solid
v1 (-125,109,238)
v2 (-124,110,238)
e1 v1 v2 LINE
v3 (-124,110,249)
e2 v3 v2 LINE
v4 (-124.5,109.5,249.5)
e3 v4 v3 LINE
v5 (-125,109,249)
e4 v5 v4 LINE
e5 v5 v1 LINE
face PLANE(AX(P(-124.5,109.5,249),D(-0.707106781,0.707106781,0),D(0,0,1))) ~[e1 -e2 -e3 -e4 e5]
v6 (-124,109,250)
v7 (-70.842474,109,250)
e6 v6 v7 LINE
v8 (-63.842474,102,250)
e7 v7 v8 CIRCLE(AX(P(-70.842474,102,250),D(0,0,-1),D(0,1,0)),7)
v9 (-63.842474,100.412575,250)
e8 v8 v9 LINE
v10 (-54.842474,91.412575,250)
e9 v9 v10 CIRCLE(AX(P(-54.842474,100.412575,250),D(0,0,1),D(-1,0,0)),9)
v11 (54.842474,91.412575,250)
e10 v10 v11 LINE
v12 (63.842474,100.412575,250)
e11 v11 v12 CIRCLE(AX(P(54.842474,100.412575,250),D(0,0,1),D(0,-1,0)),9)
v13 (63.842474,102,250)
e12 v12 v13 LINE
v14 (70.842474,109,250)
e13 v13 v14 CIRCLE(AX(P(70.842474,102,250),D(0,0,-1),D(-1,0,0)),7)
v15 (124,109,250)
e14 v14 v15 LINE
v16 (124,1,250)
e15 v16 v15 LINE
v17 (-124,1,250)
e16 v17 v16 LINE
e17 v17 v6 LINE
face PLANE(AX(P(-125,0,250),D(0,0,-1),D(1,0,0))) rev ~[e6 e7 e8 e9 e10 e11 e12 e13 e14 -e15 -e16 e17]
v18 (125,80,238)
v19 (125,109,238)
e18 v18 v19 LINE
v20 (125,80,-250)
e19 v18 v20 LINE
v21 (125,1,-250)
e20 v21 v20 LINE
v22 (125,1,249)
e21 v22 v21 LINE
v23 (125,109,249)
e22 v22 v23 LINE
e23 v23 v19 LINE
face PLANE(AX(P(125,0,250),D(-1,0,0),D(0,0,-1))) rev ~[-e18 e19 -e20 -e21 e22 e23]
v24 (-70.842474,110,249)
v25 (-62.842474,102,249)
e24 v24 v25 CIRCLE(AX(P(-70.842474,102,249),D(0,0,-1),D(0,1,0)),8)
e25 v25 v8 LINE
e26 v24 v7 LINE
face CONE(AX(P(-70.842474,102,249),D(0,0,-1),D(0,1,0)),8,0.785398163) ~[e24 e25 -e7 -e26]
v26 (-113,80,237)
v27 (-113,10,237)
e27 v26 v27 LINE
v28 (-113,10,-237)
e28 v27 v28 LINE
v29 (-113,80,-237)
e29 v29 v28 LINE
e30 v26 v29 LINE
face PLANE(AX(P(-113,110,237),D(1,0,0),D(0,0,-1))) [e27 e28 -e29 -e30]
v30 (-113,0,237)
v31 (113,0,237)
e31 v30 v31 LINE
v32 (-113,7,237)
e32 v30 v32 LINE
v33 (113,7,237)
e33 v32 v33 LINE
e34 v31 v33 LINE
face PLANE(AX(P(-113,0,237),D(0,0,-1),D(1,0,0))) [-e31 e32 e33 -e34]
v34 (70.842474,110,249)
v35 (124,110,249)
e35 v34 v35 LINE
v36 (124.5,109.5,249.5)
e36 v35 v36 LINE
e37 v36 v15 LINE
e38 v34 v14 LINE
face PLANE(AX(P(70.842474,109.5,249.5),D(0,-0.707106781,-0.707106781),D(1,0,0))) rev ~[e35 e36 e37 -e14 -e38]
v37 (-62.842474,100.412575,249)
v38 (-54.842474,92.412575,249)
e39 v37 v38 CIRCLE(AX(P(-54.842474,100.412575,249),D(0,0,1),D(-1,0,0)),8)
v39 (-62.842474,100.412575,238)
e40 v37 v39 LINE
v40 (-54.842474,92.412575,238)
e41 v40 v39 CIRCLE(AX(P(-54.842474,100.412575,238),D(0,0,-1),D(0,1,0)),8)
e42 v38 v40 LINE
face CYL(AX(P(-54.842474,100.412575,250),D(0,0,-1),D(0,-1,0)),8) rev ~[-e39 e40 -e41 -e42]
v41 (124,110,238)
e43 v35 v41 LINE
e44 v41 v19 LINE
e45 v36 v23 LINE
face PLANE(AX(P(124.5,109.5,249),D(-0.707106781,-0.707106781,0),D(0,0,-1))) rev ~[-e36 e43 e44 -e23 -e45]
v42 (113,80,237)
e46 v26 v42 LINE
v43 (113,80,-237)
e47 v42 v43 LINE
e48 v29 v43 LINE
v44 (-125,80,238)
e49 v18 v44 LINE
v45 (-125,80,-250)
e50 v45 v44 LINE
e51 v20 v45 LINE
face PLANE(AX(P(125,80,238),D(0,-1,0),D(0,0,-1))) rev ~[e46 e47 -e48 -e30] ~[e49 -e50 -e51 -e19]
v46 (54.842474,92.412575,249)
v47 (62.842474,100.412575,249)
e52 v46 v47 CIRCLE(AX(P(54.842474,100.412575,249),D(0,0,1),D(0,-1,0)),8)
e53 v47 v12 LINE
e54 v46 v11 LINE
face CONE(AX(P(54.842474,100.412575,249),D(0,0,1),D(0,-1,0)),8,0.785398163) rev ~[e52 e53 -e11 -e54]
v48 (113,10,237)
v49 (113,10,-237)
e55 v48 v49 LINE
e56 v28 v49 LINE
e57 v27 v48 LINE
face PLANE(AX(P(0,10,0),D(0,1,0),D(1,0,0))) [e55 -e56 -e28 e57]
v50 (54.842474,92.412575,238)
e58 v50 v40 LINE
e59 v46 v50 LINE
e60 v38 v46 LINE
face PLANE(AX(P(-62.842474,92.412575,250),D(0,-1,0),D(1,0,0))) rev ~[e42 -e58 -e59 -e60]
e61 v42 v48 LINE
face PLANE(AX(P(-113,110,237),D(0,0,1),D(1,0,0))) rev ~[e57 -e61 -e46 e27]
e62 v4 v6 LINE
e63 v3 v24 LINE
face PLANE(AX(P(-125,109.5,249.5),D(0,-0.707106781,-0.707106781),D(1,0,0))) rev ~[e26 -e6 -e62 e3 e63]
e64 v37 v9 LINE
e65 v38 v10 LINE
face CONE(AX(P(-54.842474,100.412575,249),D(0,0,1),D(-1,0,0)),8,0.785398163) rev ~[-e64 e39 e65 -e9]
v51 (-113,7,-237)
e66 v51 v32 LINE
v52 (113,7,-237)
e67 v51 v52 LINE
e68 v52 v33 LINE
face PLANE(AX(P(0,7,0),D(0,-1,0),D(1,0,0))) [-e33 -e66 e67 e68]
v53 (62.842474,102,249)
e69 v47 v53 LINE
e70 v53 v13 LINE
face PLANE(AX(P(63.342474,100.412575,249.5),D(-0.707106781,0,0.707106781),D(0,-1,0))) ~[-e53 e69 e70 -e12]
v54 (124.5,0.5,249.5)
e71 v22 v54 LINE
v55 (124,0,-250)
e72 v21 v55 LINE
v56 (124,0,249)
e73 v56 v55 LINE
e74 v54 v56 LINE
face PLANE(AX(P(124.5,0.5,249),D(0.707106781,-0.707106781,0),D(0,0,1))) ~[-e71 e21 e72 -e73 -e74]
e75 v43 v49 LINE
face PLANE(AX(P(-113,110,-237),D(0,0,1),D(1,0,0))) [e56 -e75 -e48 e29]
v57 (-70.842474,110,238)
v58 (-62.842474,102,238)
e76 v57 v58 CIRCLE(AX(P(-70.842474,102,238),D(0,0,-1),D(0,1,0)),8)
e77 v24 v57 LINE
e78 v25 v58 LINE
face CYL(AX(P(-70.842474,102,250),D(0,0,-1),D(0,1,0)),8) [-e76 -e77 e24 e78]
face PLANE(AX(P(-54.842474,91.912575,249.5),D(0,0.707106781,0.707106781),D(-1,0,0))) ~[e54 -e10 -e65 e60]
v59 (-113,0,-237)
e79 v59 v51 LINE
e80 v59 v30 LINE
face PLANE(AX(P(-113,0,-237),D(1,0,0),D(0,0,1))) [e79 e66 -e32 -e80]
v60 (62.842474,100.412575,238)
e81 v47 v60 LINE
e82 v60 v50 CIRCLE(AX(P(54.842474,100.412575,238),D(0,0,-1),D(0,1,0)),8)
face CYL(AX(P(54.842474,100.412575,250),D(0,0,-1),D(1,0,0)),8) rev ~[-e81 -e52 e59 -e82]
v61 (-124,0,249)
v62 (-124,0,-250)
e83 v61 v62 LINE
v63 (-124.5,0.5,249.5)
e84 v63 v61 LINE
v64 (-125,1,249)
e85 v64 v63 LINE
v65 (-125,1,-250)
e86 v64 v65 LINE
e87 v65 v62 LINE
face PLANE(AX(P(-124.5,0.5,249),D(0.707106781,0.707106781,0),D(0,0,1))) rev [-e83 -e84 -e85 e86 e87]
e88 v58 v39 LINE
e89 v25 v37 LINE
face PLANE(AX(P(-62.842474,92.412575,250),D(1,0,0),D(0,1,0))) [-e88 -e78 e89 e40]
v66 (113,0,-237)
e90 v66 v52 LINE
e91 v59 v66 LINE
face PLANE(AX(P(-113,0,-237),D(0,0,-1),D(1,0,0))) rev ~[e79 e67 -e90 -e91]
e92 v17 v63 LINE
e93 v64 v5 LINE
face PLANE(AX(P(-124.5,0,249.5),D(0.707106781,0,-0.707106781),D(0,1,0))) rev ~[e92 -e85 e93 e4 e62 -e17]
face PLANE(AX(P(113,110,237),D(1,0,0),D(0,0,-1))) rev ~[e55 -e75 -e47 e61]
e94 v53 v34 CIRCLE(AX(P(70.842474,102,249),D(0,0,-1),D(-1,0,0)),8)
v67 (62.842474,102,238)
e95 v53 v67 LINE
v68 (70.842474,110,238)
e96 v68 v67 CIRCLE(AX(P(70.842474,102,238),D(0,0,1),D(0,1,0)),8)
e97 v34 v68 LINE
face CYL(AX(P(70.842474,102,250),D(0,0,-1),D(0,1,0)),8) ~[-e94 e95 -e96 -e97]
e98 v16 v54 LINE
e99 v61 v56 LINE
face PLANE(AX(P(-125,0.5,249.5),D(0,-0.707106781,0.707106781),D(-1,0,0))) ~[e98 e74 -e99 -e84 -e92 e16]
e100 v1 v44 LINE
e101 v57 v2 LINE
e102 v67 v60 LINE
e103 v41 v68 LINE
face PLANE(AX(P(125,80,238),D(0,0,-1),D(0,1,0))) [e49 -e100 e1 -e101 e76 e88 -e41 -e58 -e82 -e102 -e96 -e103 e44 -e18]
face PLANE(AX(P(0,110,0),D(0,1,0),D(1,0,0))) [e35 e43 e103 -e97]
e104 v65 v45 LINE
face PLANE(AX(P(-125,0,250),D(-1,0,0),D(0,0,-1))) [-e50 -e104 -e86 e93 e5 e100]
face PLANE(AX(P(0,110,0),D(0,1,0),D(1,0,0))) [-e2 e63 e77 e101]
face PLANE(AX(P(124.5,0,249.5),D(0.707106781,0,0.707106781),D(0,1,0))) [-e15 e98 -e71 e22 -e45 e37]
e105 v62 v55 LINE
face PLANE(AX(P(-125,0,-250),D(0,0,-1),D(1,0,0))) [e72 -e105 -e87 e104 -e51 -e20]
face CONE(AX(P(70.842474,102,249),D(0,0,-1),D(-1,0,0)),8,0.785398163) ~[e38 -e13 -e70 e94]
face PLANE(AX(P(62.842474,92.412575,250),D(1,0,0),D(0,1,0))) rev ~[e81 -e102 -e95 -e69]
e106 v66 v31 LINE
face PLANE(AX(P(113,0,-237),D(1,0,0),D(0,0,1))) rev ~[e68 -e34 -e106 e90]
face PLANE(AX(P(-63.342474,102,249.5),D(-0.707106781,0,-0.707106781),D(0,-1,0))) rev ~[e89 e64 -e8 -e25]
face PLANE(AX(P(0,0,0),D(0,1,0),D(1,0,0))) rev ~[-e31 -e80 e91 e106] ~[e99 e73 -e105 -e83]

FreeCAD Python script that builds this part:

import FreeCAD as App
import Part
import Sketcher
from FreeCAD import Vector
Q = App.Units.Quantity


def edges_at(feature, points):
    """Names of the edges that pass closest to the given points."""
    edges = feature.Shape.Edges
    near = lambda p: min(range(len(edges)), key=lambda i: edges[i].distToShape(Part.Vertex(*p))[0])
    return sorted({f"Edge{near(p) + 1}" for p in points})

doc = App.newDocument("Part")
body = doc.addObject("PartDesign::Body", "Body")

sketch1 = body.newObject("Sketcher::SketchObject", "Sketch")
sketch1.AttachmentSupport = (doc.getObject("XZ_Plane"), [""])
sketch1.MapMode = "FlatFace"
sketch1.addGeometry(Part.LineSegment(Vector(-125, -250, 0), Vector(-125, 250, 0)), False)
sketch1.addGeometry(Part.LineSegment(Vector(-125, 250, 0), Vector(125, 250, 0)), False)
sketch1.addGeometry(Part.LineSegment(Vector(125, 250, 0), Vector(125, -250, 0)), False)
sketch1.addGeometry(Part.LineSegment(Vector(125, -250, 0), Vector(-125, -250, 0)), False)
sketch1.addConstraint(Sketcher.Constraint("Coincident", 0, 2, 1, 1))
sketch1.addConstraint(Sketcher.Constraint("Coincident", 1, 2, 2, 1))
sketch1.addConstraint(Sketcher.Constraint("Coincident", 2, 2, 3, 1))
sketch1.addConstraint(Sketcher.Constraint("Coincident", 3, 2, 0, 1))
sketch1.addConstraint(Sketcher.Constraint("Vertical", 0))
sketch1.addConstraint(Sketcher.Constraint("Horizontal", 1))
sketch1.addConstraint(Sketcher.Constraint("Vertical", 2))
sketch1.addConstraint(Sketcher.Constraint("Horizontal", 3))
sketch1.addConstraint(Sketcher.Constraint("Symmetric", 0, 2, 2, 2, -1, 1))
sketch1.addConstraint(Sketcher.Constraint("DistanceX", 1, 1, 1, 2, Q("250 mm")))
sketch1.addConstraint(Sketcher.Constraint("DistanceY", 0, 1, 0, 2, Q("500 mm")))
pad1 = body.newObject("PartDesign::Pad", "Pad")
pad1.Profile = sketch1
pad1.Length = 110
pad1.Reversed = True

sketch2 = body.newObject("Sketcher::SketchObject", "Sketch001")
sketch2.AttachmentSupport = (doc.getObject("XZ_Plane"), [""])
sketch2.MapMode = "FlatFace"
sketch2.AttachmentOffset = App.Placement(Vector(0, 0, -110), App.Rotation())
sketch2.addGeometry(Part.LineSegment(Vector(-113, -237, 0), Vector(-113, 237, 0)), False)
sketch2.addGeometry(Part.LineSegment(Vector(-113, 237, 0), Vector(113, 237, 0)), False)
sketch2.addGeometry(Part.LineSegment(Vector(113, 237, 0), Vector(113, -237, 0)), False)
sketch2.addGeometry(Part.LineSegment(Vector(113, -237, 0), Vector(-113, -237, 0)), False)
sketch2.addConstraint(Sketcher.Constraint("Coincident", 0, 2, 1, 1))
sketch2.addConstraint(Sketcher.Constraint("Coincident", 1, 2, 2, 1))
sketch2.addConstraint(Sketcher.Constraint("Coincident", 2, 2, 3, 1))
sketch2.addConstraint(Sketcher.Constraint("Coincident", 3, 2, 0, 1))
sketch2.addConstraint(Sketcher.Constraint("Vertical", 0))
sketch2.addConstraint(Sketcher.Constraint("Horizontal", 1))
sketch2.addConstraint(Sketcher.Constraint("Vertical", 2))
sketch2.addConstraint(Sketcher.Constraint("Horizontal", 3))
sketch2.addConstraint(Sketcher.Constraint("Symmetric", 0, 2, 2, 2, -1, 1))
sketch2.addConstraint(Sketcher.Constraint("DistanceX", 1, 1, 1, 2, Q("226 mm")))
sketch2.addConstraint(Sketcher.Constraint("DistanceY", 0, 1, 0, 2, Q("474 mm")))
pocket1 = body.newObject("PartDesign::Pocket", "Pocket")
pocket1.Profile = sketch2
pocket1.Length = 100
pocket1.Reversed = True

sketch3 = body.newObject("Sketcher::SketchObject", "Sketch002")
sketch3.AttachmentSupport = (doc.getObject("XZ_Plane"), [""])
sketch3.MapMode = "FlatFace"
sketch3.addGeometry(Part.LineSegment(Vector(-113, 237, 0), Vector(-113, -237, 0)), False)
sketch3.addGeometry(Part.LineSegment(Vector(-113, -237, 0), Vector(113, -237, 0)), False)
sketch3.addGeometry(Part.LineSegment(Vector(113, -237, 0), Vector(113, 237, 0)), False)
sketch3.addGeometry(Part.LineSegment(Vector(113, 237, 0), Vector(-113, 237, 0)), False)
sketch3.addConstraint(Sketcher.Constraint("Coincident", 0, 2, 1, 1))
sketch3.addConstraint(Sketcher.Constraint("Coincident", 1, 2, 2, 1))
sketch3.addConstraint(Sketcher.Constraint("Coincident", 2, 2, 3, 1))
sketch3.addConstraint(Sketcher.Constraint("Coincident", 3, 2, 0, 1))
sketch3.addConstraint(Sketcher.Constraint("Vertical", 0))
sketch3.addConstraint(Sketcher.Constraint("Horizontal", 1))
sketch3.addConstraint(Sketcher.Constraint("Vertical", 2))
sketch3.addConstraint(Sketcher.Constraint("Horizontal", 3))
sketch3.addConstraint(Sketcher.Constraint("Symmetric", 0, 2, 2, 2, -1, 1))
sketch3.addConstraint(Sketcher.Constraint("DistanceX", 1, 1, 1, 2, Q("226 mm")))
sketch3.addConstraint(Sketcher.Constraint("DistanceY", 0, 2, 0, 1, Q("474 mm")))
pocket2 = body.newObject("PartDesign::Pocket", "Pocket001")
pocket2.Profile = sketch3
pocket2.Length = 7

sketch4 = body.newObject("Sketcher::SketchObject", "Sketch003")
sketch4.AttachmentSupport = (doc.getObject("YZ_Plane"), [""])
sketch4.MapMode = "FlatFace"
sketch4.AttachmentOffset = App.Placement(Vector(0, 0, 125), App.Rotation())
sketch4.addGeometry(Part.LineSegment(Vector(176, 238, 0), Vector(80, 238, 0)), False)
sketch4.addGeometry(Part.LineSegment(Vector(80, 238, 0), Vector(80, -294, 0)), False)
sketch4.addGeometry(Part.LineSegment(Vector(80, -294, 0), Vector(176, -294, 0)), False)
sketch4.addGeometry(Part.LineSegment(Vector(176, -294, 0), Vector(176, 238, 0)), False)
sketch4.addConstraint(Sketcher.Constraint("Coincident", 0, 2, 1, 1))
sketch4.addConstraint(Sketcher.Constraint("Coincident", 1, 2, 2, 1))
sketch4.addConstraint(Sketcher.Constraint("Coincident", 2, 2, 3, 1))
sketch4.addConstraint(Sketcher.Constraint("Coincident", 3, 2, 0, 1))
sketch4.addConstraint(Sketcher.Constraint("Horizontal", 0))
sketch4.addConstraint(Sketcher.Constraint("Vertical", 1))
sketch4.addConstraint(Sketcher.Constraint("Horizontal", 2))
sketch4.addConstraint(Sketcher.Constraint("Vertical", 3))
sketch4.addConstraint(Sketcher.Constraint("DistanceX", -1, 1, 0, 2, Q("80 mm")))
sketch4.addConstraint(Sketcher.Constraint("DistanceY", -1, 1, 0, 2, Q("238 mm")))
sketch4.addConstraint(Sketcher.Constraint("DistanceY", 1, 2, 1, 1, Q("531.711239 mm")))
sketch4.addConstraint(Sketcher.Constraint("DistanceX", 0, 2, 0, 1, Q("96.104904 mm")))
pocket3 = body.newObject("PartDesign::Pocket", "Pocket002")
pocket3.Profile = sketch4
pocket3.Type = "ThroughAll"

sketch5 = body.newObject("Sketcher::SketchObject", "Sketch004")
sketch5.AttachmentSupport = (doc.getObject("XY_Plane"), [""])
sketch5.MapMode = "FlatFace"
sketch5.AttachmentOffset = App.Placement(Vector(0, 0, 250), App.Rotation())
sketch5.addGeometry(Part.LineSegment(Vector(-63, 144, 0), Vector(-63, 92, 0)), False)
sketch5.addGeometry(Part.LineSegment(Vector(-63, 92, 0), Vector(63, 92, 0)), False)
sketch5.addGeometry(Part.LineSegment(Vector(63, 92, 0), Vector(63, 144, 0)), False)
sketch5.addGeometry(Part.LineSegment(Vector(63, 144, 0), Vector(-63, 144, 0)), False)
sketch5.addConstraint(Sketcher.Constraint("Coincident", 0, 2, 1, 1))
sketch5.addConstraint(Sketcher.Constraint("Coincident", 1, 2, 2, 1))
sketch5.addConstraint(Sketcher.Constraint("Coincident", 2, 2, 3, 1))
sketch5.addConstraint(Sketcher.Constraint("Coincident", 3, 2, 0, 1))
sketch5.addConstraint(Sketcher.Constraint("Vertical", 0))
sketch5.addConstraint(Sketcher.Constraint("Horizontal", 1))
sketch5.addConstraint(Sketcher.Constraint("Vertical", 2))
sketch5.addConstraint(Sketcher.Constraint("Horizontal", 3))
sketch5.addConstraint(Sketcher.Constraint("DistanceX", 1, 1, 1, 2, Q("125.684948 mm")))
sketch5.addConstraint(Sketcher.Constraint("DistanceY", 0, 2, 0, 1, Q("51.126081 mm")))
sketch5.addConstraint(Sketcher.Constraint("DistanceX", 0, 2, -1, 1, Q("62.842474 mm")))
sketch5.addConstraint(Sketcher.Constraint("DistanceY", -1, 1, 0, 2, Q("92.412575 mm")))
pocket4 = body.newObject("PartDesign::Pocket", "Pocket003")
pocket4.Profile = sketch5
pocket4.Length = 15
doc.recompute()

fillet = body.newObject("PartDesign::Fillet", "Fillet")
fillet.Base = (pocket4, edges_at(pocket4, [
    (62.842, 110, 244),
    (62.842, 92.413, 244),
    (-62.842, 110, 244),
    (-62.842, 92.413, 244),
]))
fillet.Radius = 8
doc.recompute()

chamfer = body.newObject("PartDesign::Chamfer", "Chamfer")
chamfer.Base = (fillet, edges_at(fillet, [
    (-97.921, 110, 250),
    (0, 0, 250),
    (125, 55, 250),
    (-125, 55, 250),
    (62.842, 101.206, 250),
    (0, 92.413, 250),
    (97.921, 110, 250),
    (-62.842, 101.206, 250),
    (-65.186, 107.657, 250),
    (65.186, 107.657, 250),
    (60.499, 94.756, 250),
    (-60.499, 94.756, 250),
]))
chamfer.Size = 1
doc.recompute()

chamfer2 = body.newObject("PartDesign::Chamfer", "Chamfer001")
chamfer2.Base = (chamfer, edges_at(chamfer, [
    (125, 110, 243.5),
    (125, 0, -0.5),
    (-125, 110, 243.5),
    (-125, 0, -0.5),
]))
chamfer2.Size = 1

doc.recompute()
